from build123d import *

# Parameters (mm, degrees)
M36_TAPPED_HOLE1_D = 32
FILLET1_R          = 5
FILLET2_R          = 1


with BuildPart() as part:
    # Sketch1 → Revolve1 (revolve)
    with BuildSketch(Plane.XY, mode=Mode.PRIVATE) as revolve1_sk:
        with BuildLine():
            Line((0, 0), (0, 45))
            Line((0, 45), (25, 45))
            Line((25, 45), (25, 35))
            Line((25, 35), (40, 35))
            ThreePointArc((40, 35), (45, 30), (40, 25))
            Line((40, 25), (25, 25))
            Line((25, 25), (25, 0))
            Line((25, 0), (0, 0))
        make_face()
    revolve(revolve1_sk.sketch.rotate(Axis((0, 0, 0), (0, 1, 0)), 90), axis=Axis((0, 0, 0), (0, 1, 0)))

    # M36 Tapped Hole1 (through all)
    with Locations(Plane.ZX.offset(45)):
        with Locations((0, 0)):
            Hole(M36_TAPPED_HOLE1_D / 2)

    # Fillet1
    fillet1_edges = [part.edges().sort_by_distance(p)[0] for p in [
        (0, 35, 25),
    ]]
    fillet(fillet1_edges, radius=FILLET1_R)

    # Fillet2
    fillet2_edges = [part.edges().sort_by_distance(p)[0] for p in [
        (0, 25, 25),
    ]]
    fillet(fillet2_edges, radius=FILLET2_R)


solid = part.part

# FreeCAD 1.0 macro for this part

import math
import FreeCAD as App
import Part
import Sketcher

V = App.Vector


def edges_at(feature, points):
    """Names of the edges that pass closest to the given points."""
    edges = feature.Shape.Edges
    near = lambda p: min(range(len(edges)), key=lambda i: edges[i].distToShape(Part.Vertex(*p))[0])
    return sorted({f"Edge{near(p) + 1}" for p in points})

doc = App.newDocument("Part")
params = doc.addObject("Spreadsheet::Sheet", "Params")
for row, (alias, value) in enumerate([
    ("sketch1_radius", "5 mm"),
    ("sketch1_width", "25 mm"),
    ("sketch1_width2", "15 mm"),
    ("sketch1_height", "45 mm"),
    ("revolution_angle", "360 deg"),
    ("sketch2_diameter", "32 mm"),
    ("hole_diameter", "32 mm"),
    ("fillet_radius", "5 mm"),
    ("fillet2_radius", "1 mm"),
], start=1):
    params.set(f"A{row}", alias)
    params.set(f"B{row}", "=" + value)
    params.setAlias(f"B{row}", alias)

body = doc.addObject("PartDesign::Body", "Body")

# Sketch on XY plane
sketch1 = body.newObject("Sketcher::SketchObject", "Sketch")
sketch1.AttachmentSupport = (doc.getObject("XY_Plane"), [""])
sketch1.MapMode = "FlatFace"
sketch1.addGeometry([
    Part.LineSegment(V(0, 45, 0), V(0, 0, 0)),  # 0
    Part.LineSegment(V(0, 0, 0), V(25, 0, 0)),  # 1
    Part.LineSegment(V(25, 0, 0), V(25, 25, 0)),  # 2
    Part.LineSegment(V(25, 25, 0), V(40, 25, 0)),  # 3
    Part.ArcOfCircle(Part.Circle(V(40, 30, 0), V(0, 0, 1), 5), math.radians(-90), math.radians(90)),  # 4
    Part.LineSegment(V(40, 35, 0), V(25, 35, 0)),  # 5
    Part.LineSegment(V(25, 35, 0), V(25, 45, 0)),  # 6
    Part.LineSegment(V(25, 45, 0), V(0, 45, 0)),  # 7
], False)
sketch1.addConstraint([
    Sketcher.Constraint("Coincident", 0, 2, 1, 1),
    Sketcher.Constraint("Coincident", 1, 2, 2, 1),
    Sketcher.Constraint("Coincident", 2, 2, 3, 1),
    Sketcher.Constraint("Tangent", 3, 2, 4, 1),
    Sketcher.Constraint("Tangent", 4, 2, 5, 1),
    Sketcher.Constraint("Coincident", 5, 2, 6, 1),
    Sketcher.Constraint("Coincident", 6, 2, 7, 1),
    Sketcher.Constraint("Coincident", 7, 2, 0, 1),
    Sketcher.Constraint("Vertical", 0),
    Sketcher.Constraint("Horizontal", 1),
    Sketcher.Constraint("Vertical", 2),
    Sketcher.Constraint("Horizontal", 3),
    Sketcher.Constraint("Horizontal", 5),
    Sketcher.Constraint("Vertical", 6),
    Sketcher.Constraint("Horizontal", 7),
    Sketcher.Constraint("Coincident", 0, 2, -1, 1),
    Sketcher.Constraint("Vertical", 2, 2, 5, 2),
    Sketcher.Constraint("Equal", 7, 2),
    Sketcher.Constraint("Radius", 4, 5.0),
    Sketcher.Constraint("DistanceX", 1, 1, 1, 2, 25.0),
    Sketcher.Constraint("DistanceX", 3, 1, 3, 2, 15.0),
    Sketcher.Constraint("DistanceY", 0, 2, 0, 1, 45.0),
])
sketch1.setExpression("Constraints[18]", "Params.sketch1_radius")
sketch1.setExpression("Constraints[19]", "Params.sketch1_width")
sketch1.setExpression("Constraints[20]", "Params.sketch1_width2")
sketch1.setExpression("Constraints[21]", "Params.sketch1_height")
revolution = body.newObject("PartDesign::Revolution", "Revolution")
revolution.Profile = sketch1
revolution.ReferenceAxis = (sketch1, ["V_Axis"])
revolution.setExpression("Angle", "Params.revolution_angle")

# Sketch on XZ plane
sketch2 = body.newObject("Sketcher::SketchObject", "Sketch001")
sketch2.AttachmentSupport = (doc.getObject("XZ_Plane"), [""])
sketch2.MapMode = "FlatFace"
sketch2.AttachmentOffset = App.Placement(V(0, 0, -45), App.Rotation())
sketch2.addGeometry(Part.Circle(V(0, 0, 0), V(0, 0, 1), 16), False)
sketch2.addConstraint([
    Sketcher.Constraint("Coincident", 0, 3, -1, 1),
    Sketcher.Constraint("Diameter", 0, 32.0),
])
sketch2.setExpression("Constraints[1]", "Params.sketch2_diameter")
doc.recompute()
hole = body.newObject("PartDesign::Hole", "Hole")
hole.Profile = sketch2
hole.ThreadType = "None"
hole.setExpression("Diameter", "Params.hole_diameter")
hole.DepthType = "ThroughAll"
hole.Reversed = True
doc.recompute()

fillet = body.newObject("PartDesign::Fillet", "Fillet")
fillet.Base = (hole, edges_at(hole, [(0, 35, 25)]))
fillet.setExpression("Radius", "Params.fillet_radius")
doc.recompute()

fillet2 = body.newObject("PartDesign::Fillet", "Fillet001")
fillet2.Base = (fillet, edges_at(fillet, [(0, 25, 25)]))
fillet2.setExpression("Radius", "Params.fillet2_radius")

doc.recompute()
